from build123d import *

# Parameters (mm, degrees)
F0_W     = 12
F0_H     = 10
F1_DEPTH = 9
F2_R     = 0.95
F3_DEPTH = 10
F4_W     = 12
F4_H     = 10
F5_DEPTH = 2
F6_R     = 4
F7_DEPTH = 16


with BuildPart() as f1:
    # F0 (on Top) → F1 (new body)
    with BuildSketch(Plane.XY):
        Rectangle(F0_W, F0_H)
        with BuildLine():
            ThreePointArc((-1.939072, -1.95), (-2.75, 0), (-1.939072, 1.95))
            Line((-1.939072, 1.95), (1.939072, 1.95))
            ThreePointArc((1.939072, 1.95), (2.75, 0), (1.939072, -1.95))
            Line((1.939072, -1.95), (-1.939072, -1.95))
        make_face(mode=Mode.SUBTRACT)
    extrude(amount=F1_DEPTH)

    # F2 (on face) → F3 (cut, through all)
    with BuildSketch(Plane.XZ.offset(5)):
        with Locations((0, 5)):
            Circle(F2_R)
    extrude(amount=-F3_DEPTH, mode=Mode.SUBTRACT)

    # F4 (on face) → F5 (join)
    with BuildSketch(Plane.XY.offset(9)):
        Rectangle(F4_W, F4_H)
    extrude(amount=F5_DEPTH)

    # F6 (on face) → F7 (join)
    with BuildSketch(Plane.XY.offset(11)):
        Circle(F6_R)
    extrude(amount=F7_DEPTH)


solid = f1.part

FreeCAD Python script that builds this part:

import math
import FreeCAD as App
import Part
import Sketcher
from FreeCAD import Vector

doc = App.newDocument("Part")
body = doc.addObject("PartDesign::Body", "Body")

sketch1 = body.newObject("Sketcher::SketchObject", "Sketch")
sketch1.AttachmentSupport = (doc.getObject("XY_Plane"), [""])
sketch1.MapMode = "FlatFace"
sketch1.addGeometry(Part.LineSegment(Vector(-6, 5, 0), Vector(-6, -5, 0)), False)
sketch1.addGeometry(Part.LineSegment(Vector(-6, -5, 0), Vector(6, -5, 0)), False)
sketch1.addGeometry(Part.LineSegment(Vector(6, -5, 0), Vector(6, 5, 0)), False)
sketch1.addGeometry(Part.LineSegment(Vector(6, 5, 0), Vector(-6, 5, 0)), False)
sketch1.addGeometry(Part.LineSegment(Vector(1.939072, -1.95, 0), Vector(-1.939072, -1.95, 0)), False)
sketch1.addGeometry(Part.ArcOfCircle(Part.Circle(Vector(0, 0, 0), Vector(0, 0, 1), 2.75), math.radians(134.839006), math.radians(225.160994)), False)
sketch1.addGeometry(Part.LineSegment(Vector(-1.939072, 1.95, 0), Vector(1.939072, 1.95, 0)), False)
sketch1.addGeometry(Part.ArcOfCircle(Part.Circle(Vector(0, 0, 0), Vector(0, 0, 1), 2.75), math.radians(-45.160994), math.radians(45.160994)), False)
sketch1.addConstraint(Sketcher.Constraint("Coincident", 0, 2, 1, 1))
sketch1.addConstraint(Sketcher.Constraint("Coincident", 1, 2, 2, 1))
sketch1.addConstraint(Sketcher.Constraint("Coincident", 2, 2, 3, 1))
sketch1.addConstraint(Sketcher.Constraint("Coincident", 3, 2, 0, 1))
sketch1.addConstraint(Sketcher.Constraint("Coincident", 4, 2, 5, 2))
sketch1.addConstraint(Sketcher.Constraint("Coincident", 5, 1, 6, 1))
sketch1.addConstraint(Sketcher.Constraint("Coincident", 6, 2, 7, 2))
sketch1.addConstraint(Sketcher.Constraint("Coincident", 7, 1, 4, 1))
sketch1.addConstraint(Sketcher.Constraint("Vertical", 0))
sketch1.addConstraint(Sketcher.Constraint("Horizontal", 1))
sketch1.addConstraint(Sketcher.Constraint("Vertical", 2))
sketch1.addConstraint(Sketcher.Constraint("Horizontal", 3))
sketch1.addConstraint(Sketcher.Constraint("Horizontal", 4))
sketch1.addConstraint(Sketcher.Constraint("Horizontal", 6))
sketch1.addConstraint(Sketcher.Constraint("Coincident", 5, 3, -1, 1))
sketch1.addConstraint(Sketcher.Constraint("Coincident", 7, 3, -1, 1))
sketch1.addConstraint(Sketcher.Constraint("Equal", 5, 7))
sketch1.addConstraint(Sketcher.Constraint("Symmetric", 0, 2, 2, 2, -1, 1))
sketch1.addConstraint(Sketcher.Constraint("Vertical", 4, 2, 5, 1))
sketch1.addConstraint(Sketcher.Constraint("DistanceX", 1, 1, 1, 2, 12.0))
sketch1.addConstraint(Sketcher.Constraint("DistanceY", 0, 2, 0, 1, 10.0))
sketch1.addConstraint(Sketcher.Constraint("Radius", 5, 2.75))
sketch1.addConstraint(Sketcher.Constraint("DistanceY", 4, 2, 5, 1, 3.9))
pad1 = body.newObject("PartDesign::Pad", "Pad")
pad1.Profile = sketch1
pad1.Length = 9

sketch2 = body.newObject("Sketcher::SketchObject", "Sketch001")
sketch2.AttachmentSupport = (doc.getObject("XZ_Plane"), [""])
sketch2.MapMode = "FlatFace"
sketch2.AttachmentOffset = App.Placement(Vector(0, 0, 5), App.Rotation())
sketch2.addGeometry(Part.Circle(Vector(0, 5, 0), Vector(0, 0, 1), 0.95), False)
sketch2.addConstraint(Sketcher.Constraint("PointOnObject", 0, 3, -2))
sketch2.addConstraint(Sketcher.Constraint("Diameter", 0, 1.9))
sketch2.addConstraint(Sketcher.Constraint("DistanceY", -1, 1, 0, 3, 5.0))
pocket1 = body.newObject("PartDesign::Pocket", "Pocket")
pocket1.Profile = sketch2
pocket1.Type = "ThroughAll"

sketch3 = body.newObject("Sketcher::SketchObject", "Sketch002")
sketch3.AttachmentSupport = (doc.getObject("XY_Plane"), [""])
sketch3.MapMode = "FlatFace"
sketch3.AttachmentOffset = App.Placement(Vector(0, 0, 9), App.Rotation())
sketch3.addGeometry(Part.LineSegment(Vector(-6, 5, 0), Vector(-6, -5, 0)), False)
sketch3.addGeometry(Part.LineSegment(Vector(-6, -5, 0), Vector(6, -5, 0)), False)
sketch3.addGeometry(Part.LineSegment(Vector(6, -5, 0), Vector(6, 5, 0)), False)
sketch3.addGeometry(Part.LineSegment(Vector(6, 5, 0), Vector(-6, 5, 0)), False)
sketch3.addConstraint(Sketcher.Constraint("Coincident", 0, 2, 1, 1))
sketch3.addConstraint(Sketcher.Constraint("Coincident", 1, 2, 2, 1))
sketch3.addConstraint(Sketcher.Constraint("Coincident", 2, 2, 3, 1))
sketch3.addConstraint(Sketcher.Constraint("Coincident", 3, 2, 0, 1))
sketch3.addConstraint(Sketcher.Constraint("Vertical", 0))
sketch3.addConstraint(Sketcher.Constraint("Horizontal", 1))
sketch3.addConstraint(Sketcher.Constraint("Vertical", 2))
sketch3.addConstraint(Sketcher.Constraint("Horizontal", 3))
sketch3.addConstraint(Sketcher.Constraint("Symmetric", 0, 2, 2, 2, -1, 1))
sketch3.addConstraint(Sketcher.Constraint("DistanceX", 1, 1, 1, 2, 12.0))
sketch3.addConstraint(Sketcher.Constraint("DistanceY", 0, 2, 0, 1, 10.0))
pad2 = body.newObject("PartDesign::Pad", "Pad001")
pad2.Profile = sketch3
pad2.Length = 2

sketch4 = body.newObject("Sketcher::SketchObject", "Sketch003")
sketch4.AttachmentSupport = (doc.getObject("XY_Plane"), [""])
sketch4.MapMode = "FlatFace"
sketch4.AttachmentOffset = App.Placement(Vector(0, 0, 11), App.Rotation())
sketch4.addGeometry(Part.Circle(Vector(0, 0, 0), Vector(0, 0, 1), 4), False)
sketch4.addConstraint(Sketcher.Constraint("Coincident", 0, 3, -1, 1))
sketch4.addConstraint(Sketcher.Constraint("Diameter", 0, 8.0))
pad3 = body.newObject("PartDesign::Pad", "Pad002")
pad3.Profile = sketch4
pad3.Length = 16

doc.recompute()
